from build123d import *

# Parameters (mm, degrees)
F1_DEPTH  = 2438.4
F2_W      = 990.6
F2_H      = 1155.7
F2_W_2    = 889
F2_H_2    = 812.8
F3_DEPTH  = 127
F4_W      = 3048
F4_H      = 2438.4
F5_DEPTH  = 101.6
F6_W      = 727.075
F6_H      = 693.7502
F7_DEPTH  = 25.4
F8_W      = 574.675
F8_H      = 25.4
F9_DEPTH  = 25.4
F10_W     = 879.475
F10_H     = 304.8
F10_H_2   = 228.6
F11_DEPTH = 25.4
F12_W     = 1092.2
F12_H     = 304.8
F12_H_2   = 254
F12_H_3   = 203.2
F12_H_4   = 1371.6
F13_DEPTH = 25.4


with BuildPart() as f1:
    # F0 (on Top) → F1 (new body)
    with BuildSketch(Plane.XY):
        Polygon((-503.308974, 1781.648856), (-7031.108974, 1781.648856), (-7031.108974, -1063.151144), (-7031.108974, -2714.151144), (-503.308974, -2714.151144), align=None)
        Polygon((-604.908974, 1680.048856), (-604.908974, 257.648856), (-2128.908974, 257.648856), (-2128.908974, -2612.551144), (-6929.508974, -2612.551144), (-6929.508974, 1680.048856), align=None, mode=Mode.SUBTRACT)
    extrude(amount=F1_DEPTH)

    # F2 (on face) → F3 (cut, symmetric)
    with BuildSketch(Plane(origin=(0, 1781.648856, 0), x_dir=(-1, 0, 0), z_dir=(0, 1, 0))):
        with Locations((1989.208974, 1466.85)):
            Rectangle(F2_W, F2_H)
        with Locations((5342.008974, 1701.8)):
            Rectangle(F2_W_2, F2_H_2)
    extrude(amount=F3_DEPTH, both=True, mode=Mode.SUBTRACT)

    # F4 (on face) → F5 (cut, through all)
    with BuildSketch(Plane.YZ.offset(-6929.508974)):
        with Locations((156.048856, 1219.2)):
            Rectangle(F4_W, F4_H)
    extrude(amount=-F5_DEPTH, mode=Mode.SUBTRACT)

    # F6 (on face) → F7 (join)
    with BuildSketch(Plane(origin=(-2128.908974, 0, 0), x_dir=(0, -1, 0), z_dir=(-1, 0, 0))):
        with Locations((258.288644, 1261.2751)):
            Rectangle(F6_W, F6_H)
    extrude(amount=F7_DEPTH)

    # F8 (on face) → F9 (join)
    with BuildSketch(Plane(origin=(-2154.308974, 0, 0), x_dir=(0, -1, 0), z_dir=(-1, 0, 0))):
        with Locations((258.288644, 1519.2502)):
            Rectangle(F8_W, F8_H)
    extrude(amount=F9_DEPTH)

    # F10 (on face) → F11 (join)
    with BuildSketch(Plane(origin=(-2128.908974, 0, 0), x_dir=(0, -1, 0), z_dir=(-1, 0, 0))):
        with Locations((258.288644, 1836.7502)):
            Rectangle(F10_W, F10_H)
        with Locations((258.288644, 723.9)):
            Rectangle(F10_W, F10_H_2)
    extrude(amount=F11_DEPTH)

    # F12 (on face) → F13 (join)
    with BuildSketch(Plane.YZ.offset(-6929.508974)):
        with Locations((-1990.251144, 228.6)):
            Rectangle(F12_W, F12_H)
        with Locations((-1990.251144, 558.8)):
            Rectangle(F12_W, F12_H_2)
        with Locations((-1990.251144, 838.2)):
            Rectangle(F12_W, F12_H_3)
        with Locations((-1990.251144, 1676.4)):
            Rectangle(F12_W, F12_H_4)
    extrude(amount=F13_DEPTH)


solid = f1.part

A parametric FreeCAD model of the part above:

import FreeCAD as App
import Part
import Sketcher
Q = App.Units.Quantity


def add_polygon(sketch, points):
    """Adds a closed chain of lines whose ends are joined by coincident constraints."""
    first, n = sketch.GeometryCount, len(points)
    for a, b in zip(points, points[1:] + points[:1]):
        sketch.addGeometry(Part.LineSegment(App.Vector(*a, 0), App.Vector(*b, 0)), False)
    for i in range(n):
        sketch.addConstraint(Sketcher.Constraint("Coincident", first + i, 2, first + (i + 1) % n, 1))

doc = App.newDocument("Part")
params = doc.addObject("Spreadsheet::Sheet", "Params")
for row, (alias, value) in enumerate([
    ("sketch1_width", "257 in"),
    ("sketch1_width2", "249 in"),
    ("sketch1_width3", "60 in"),
    ("sketch1_height", "177 in"),
    ("sketch1_height2", "56 in"),
    ("pad1_length", "96 in"),
    ("sketch2_width", "39 in"),
    ("sketch2_width2", "35 in"),
    ("sketch2_height", "32 in"),
    ("sketch2_height2", "45.5 in"),
    ("pocket1_length", "10 in"),
    ("sketch3_width", "120 in"),
    ("sketch3_height", "96 in"),
    ("sketch4_width", "28.625 in"),
    ("sketch4_height", "27.313 in"),
    ("pad2_length", "1 in"),
    ("sketch5_height", "1 in"),
    ("sketch5_width", "22.625 in"),
    ("pad3_length", "1 in"),
    ("sketch6_height", "12 in"),
    ("sketch6_height2", "9 in"),
    ("sketch6_width", "34.625 in"),
    ("pad4_length", "1 in"),
    ("sketch7_width", "43 in"),
    ("sketch7_height", "12 in"),
    ("sketch7_height2", "10 in"),
    ("sketch7_height3", "8 in"),
    ("sketch7_height4", "54 in"),
    ("pad5_length", "1 in"),
], start=1):
    params.set(f"A{row}", alias)
    params.set(f"B{row}", "=" + value)
    params.setAlias(f"B{row}", alias)

body = doc.addObject("PartDesign::Body", "Body")

# Sketch on XY plane
sketch1 = body.newObject("Sketcher::SketchObject", "Sketch")
sketch1.AttachmentSupport = (doc.getObject("XY_Plane"), [""])
sketch1.MapMode = "FlatFace"
add_polygon(sketch1, [(-503, 1782), (-7031, 1782), (-7031, -2714), (-503, -2714)])  # lines 0-3
add_polygon(sketch1, [(-6930, 1680), (-605, 1680), (-605, 258), (-2129, 258), (-2129, -2613), (-6930, -2613)])  # lines 4-9
sketch1.addConstraint(Sketcher.Constraint("Horizontal", 0))
sketch1.addConstraint(Sketcher.Constraint("Vertical", 1))
sketch1.addConstraint(Sketcher.Constraint("Horizontal", 2))
sketch1.addConstraint(Sketcher.Constraint("Vertical", 3))
sketch1.addConstraint(Sketcher.Constraint("Horizontal", 4))
sketch1.addConstraint(Sketcher.Constraint("Vertical", 5))
sketch1.addConstraint(Sketcher.Constraint("Horizontal", 6))
sketch1.addConstraint(Sketcher.Constraint("Vertical", 7))
sketch1.addConstraint(Sketcher.Constraint("Horizontal", 8))
sketch1.addConstraint(Sketcher.Constraint("Vertical", 9))
sketch1.addConstraint(Sketcher.Constraint("DistanceX", 0, 2, 0, 1, Q("257 in")))
sketch1.addConstraint(Sketcher.Constraint("DistanceX", 4, 1, 4, 2, Q("249 in")))
sketch1.addConstraint(Sketcher.Constraint("DistanceX", 6, 2, 6, 1, Q("60 in")))
sketch1.addConstraint(Sketcher.Constraint("DistanceY", 1, 2, 1, 1, Q("177 in")))
sketch1.addConstraint(Sketcher.Constraint("DistanceY", 5, 2, 5, 1, Q("56 in")))
sketch1.addConstraint(Sketcher.Constraint("DistanceY", 7, 2, 7, 1, Q("113 in")))
sketch1.addConstraint(Sketcher.Constraint("DistanceX", 4, 2, 3, 2, Q("4 in")))
sketch1.addConstraint(Sketcher.Constraint("DistanceY", 4, 2, 3, 2, Q("4 in")))
sketch1.addConstraint(Sketcher.Constraint("DistanceX", 0, 2, -1, 1, Q("7031.108974 mm")))
sketch1.addConstraint(Sketcher.Constraint("DistanceY", -1, 1, 0, 2, Q("1781.648856 mm")))
sketch1.setExpression("Constraints[20]", "Params.sketch1_width")
sketch1.setExpression("Constraints[21]", "Params.sketch1_width2")
sketch1.setExpression("Constraints[22]", "Params.sketch1_width3")
sketch1.setExpression("Constraints[23]", "Params.sketch1_height")
sketch1.setExpression("Constraints[24]", "Params.sketch1_height2")
pad1 = body.newObject("PartDesign::Pad", "Pad")
pad1.Profile = sketch1
pad1.setExpression("Length", "Params.pad1_length")

# Sketch on XZ plane
sketch2 = body.newObject("Sketcher::SketchObject", "Sketch001")
sketch2.AttachmentSupport = (doc.getObject("XZ_Plane"), [""])
sketch2.MapMode = "FlatFace"
sketch2.AttachmentOffset = App.Placement(App.Vector(0, 0, -1781.648856), App.Rotation())
add_polygon(sketch2, [(-1494, 2045), (-1494, 889), (-2485, 889), (-2485, 2045)])  # lines 0-3
add_polygon(sketch2, [(-4898, 2108), (-4898, 1295), (-5787, 1295), (-5787, 2108)])  # lines 4-7
sketch2.addConstraint(Sketcher.Constraint("Vertical", 0))
sketch2.addConstraint(Sketcher.Constraint("Horizontal", 1))
sketch2.addConstraint(Sketcher.Constraint("Vertical", 2))
sketch2.addConstraint(Sketcher.Constraint("Horizontal", 3))
sketch2.addConstraint(Sketcher.Constraint("Vertical", 4))
sketch2.addConstraint(Sketcher.Constraint("Horizontal", 5))
sketch2.addConstraint(Sketcher.Constraint("Vertical", 6))
sketch2.addConstraint(Sketcher.Constraint("Horizontal", 7))
sketch2.addConstraint(Sketcher.Constraint("DistanceX", 1, 2, 1, 1, Q("39 in")))
sketch2.addConstraint(Sketcher.Constraint("DistanceX", 5, 2, 5, 1, Q("35 in")))
sketch2.addConstraint(Sketcher.Constraint("DistanceY", 4, 2, 4, 1, Q("32 in")))
sketch2.addConstraint(Sketcher.Constraint("DistanceY", 0, 2, 0, 1, Q("45.5 in")))
sketch2.addConstraint(Sketcher.Constraint("DistanceY", -1, 1, 0, 2, Q("35 in")))
sketch2.addConstraint(Sketcher.Constraint("DistanceY", -1, 1, 4, 2, Q("51 in")))
sketch2.addConstraint(Sketcher.Constraint("DistanceX", 4, 2, 1, 2, Q("95 in")))
sketch2.addConstraint(Sketcher.Constraint("DistanceX", 0, 2, -1, 1, Q("1493.908974 mm")))
sketch2.setExpression("Constraints[16]", "Params.sketch2_width")
sketch2.setExpression("Constraints[17]", "Params.sketch2_width2")
sketch2.setExpression("Constraints[18]", "Params.sketch2_height")
sketch2.setExpression("Constraints[19]", "Params.sketch2_height2")
pocket1 = body.newObject("PartDesign::Pocket", "Pocket")
pocket1.Profile = sketch2
pocket1.setExpression("Length", "Params.pocket1_length")
pocket1.Midplane = True

# Sketch on YZ plane
sketch3 = body.newObject("Sketcher::SketchObject", "Sketch002")
sketch3.AttachmentSupport = (doc.getObject("YZ_Plane"), [""])
sketch3.MapMode = "FlatFace"
sketch3.AttachmentOffset = App.Placement(App.Vector(0, 0, -6929.508974), App.Rotation())
add_polygon(sketch3, [(-1368, 2438), (-1368, 0), (1680, 0), (1680, 2438)])  # lines 0-3
sketch3.addConstraint(Sketcher.Constraint("Vertical", 0))
sketch3.addConstraint(Sketcher.Constraint("Horizontal", 1))
sketch3.addConstraint(Sketcher.Constraint("Vertical", 2))
sketch3.addConstraint(Sketcher.Constraint("Horizontal", 3))
sketch3.addConstraint(Sketcher.Constraint("PointOnObject", 0, 2, -1))
sketch3.addConstraint(Sketcher.Constraint("DistanceX", 1, 1, 1, 2, Q("120 in")))
sketch3.addConstraint(Sketcher.Constraint("DistanceY", 0, 2, 0, 1, Q("96 in")))
sketch3.addConstraint(Sketcher.Constraint("DistanceX", 0, 2, -1, 1, Q("1367.951144 mm")))
sketch3.setExpression("Constraints[9]", "Params.sketch3_width")
sketch3.setExpression("Constraints[10]", "Params.sketch3_height")
pocket2 = body.newObject("PartDesign::Pocket", "Pocket001")
pocket2.Profile = sketch3
pocket2.Type = "ThroughAll"

# Sketch on YZ plane
sketch4 = body.newObject("Sketcher::SketchObject", "Sketch003")
sketch4.AttachmentSupport = (doc.getObject("YZ_Plane"), [""])
sketch4.MapMode = "FlatFace"
sketch4.AttachmentOffset = App.Placement(App.Vector(0, 0, -2128.908974), App.Rotation())
add_polygon(sketch4, [(105, 1608), (105, 914), (-622, 914), (-622, 1608)])  # lines 0-3
sketch4.addConstraint(Sketcher.Constraint("Vertical", 0))
sketch4.addConstraint(Sketcher.Constraint("Horizontal", 1))
sketch4.addConstraint(Sketcher.Constraint("Vertical", 2))
sketch4.addConstraint(Sketcher.Constraint("Horizontal", 3))
sketch4.addConstraint(Sketcher.Constraint("DistanceY", -1, 1, 0, 2, Q("36 in")))
sketch4.addConstraint(Sketcher.Constraint("DistanceX", 1, 2, 1, 1, Q("28.625 in")))
sketch4.addConstraint(Sketcher.Constraint("DistanceY", 0, 2, 0, 1, Q("27.313 in")))
sketch4.addConstraint(Sketcher.Constraint("DistanceX", -1, 1, 0, 2, Q("105.248856 mm")))
sketch4.setExpression("Constraints[9]", "Params.sketch4_width")
sketch4.setExpression("Constraints[10]", "Params.sketch4_height")
pad2 = body.newObject("PartDesign::Pad", "Pad001")
pad2.Profile = sketch4
pad2.setExpression("Length", "Params.pad2_length")
pad2.Reversed = True

# Sketch on YZ plane
sketch5 = body.newObject("Sketcher::SketchObject", "Sketch004")
sketch5.AttachmentSupport = (doc.getObject("YZ_Plane"), [""])
sketch5.MapMode = "FlatFace"
sketch5.AttachmentOffset = App.Placement(App.Vector(0, 0, -2154.308974), App.Rotation())
add_polygon(sketch5, [(29, 1532), (29, 1507), (-546, 1507), (-546, 1532)])  # lines 0-3
sketch5.addConstraint(Sketcher.Constraint("Vertical", 0))
sketch5.addConstraint(Sketcher.Constraint("Horizontal", 1))
sketch5.addConstraint(Sketcher.Constraint("Vertical", 2))
sketch5.addConstraint(Sketcher.Constraint("Horizontal", 3))
sketch5.addConstraint(Sketcher.Constraint("DistanceY", 0, 2, 0, 1, Q("1 in")))
sketch5.addConstraint(Sketcher.Constraint("DistanceX", 1, 2, 1, 1, Q("22.625 in")))
sketch5.addConstraint(Sketcher.Constraint("DistanceY", -1, 1, 0, 2, Q("59.313 in")))
sketch5.addConstraint(Sketcher.Constraint("DistanceX", -1, 1, 0, 2, Q("29.048856 mm")))
sketch5.setExpression("Constraints[8]", "Params.sketch5_height")
sketch5.setExpression("Constraints[9]", "Params.sketch5_width")
pad3 = body.newObject("PartDesign::Pad", "Pad002")
pad3.Profile = sketch5
pad3.setExpression("Length", "Params.pad3_length")
pad3.Reversed = True

# Sketch on YZ plane
sketch6 = body.newObject("Sketcher::SketchObject", "Sketch005")
sketch6.AttachmentSupport = (doc.getObject("YZ_Plane"), [""])
sketch6.MapMode = "FlatFace"
sketch6.AttachmentOffset = App.Placement(App.Vector(0, 0, -2128.908974), App.Rotation())
add_polygon(sketch6, [(181, 1989), (181, 1684), (-698, 1684), (-698, 1989)])  # lines 0-3
add_polygon(sketch6, [(181, 838), (181, 610), (-698, 610), (-698, 838)])  # lines 4-7
sketch6.addConstraint(Sketcher.Constraint("Vertical", 0))
sketch6.addConstraint(Sketcher.Constraint("Horizontal", 1))
sketch6.addConstraint(Sketcher.Constraint("Vertical", 2))
sketch6.addConstraint(Sketcher.Constraint("Horizontal", 3))
sketch6.addConstraint(Sketcher.Constraint("Vertical", 4))
sketch6.addConstraint(Sketcher.Constraint("Horizontal", 5))
sketch6.addConstraint(Sketcher.Constraint("Vertical", 6))
sketch6.addConstraint(Sketcher.Constraint("Horizontal", 7))
sketch6.addConstraint(Sketcher.Constraint("Vertical", 3, 2, 4, 2))
sketch6.addConstraint(Sketcher.Constraint("Vertical", 2, 2, 5, 2))
sketch6.addConstraint(Sketcher.Constraint("DistanceY", 0, 2, 0, 1, Q("12 in")))
sketch6.addConstraint(Sketcher.Constraint("DistanceY", 4, 2, 4, 1, Q("9 in")))
sketch6.addConstraint(Sketcher.Constraint("DistanceY", -1, 1, 4, 2, Q("24 in")))
sketch6.addConstraint(Sketcher.Constraint("DistanceX", 1, 2, 1, 1, Q("34.625 in")))
sketch6.addConstraint(Sketcher.Constraint("DistanceY", -1, 1, 0, 2, Q("66.313 in")))
sketch6.addConstraint(Sketcher.Constraint("DistanceX", -1, 1, 0, 2, Q("181.448856 mm")))
sketch6.setExpression("Constraints[18]", "Params.sketch6_height")
sketch6.setExpression("Constraints[19]", "Params.sketch6_height2")
sketch6.setExpression("Constraints[21]", "Params.sketch6_width")
pad4 = body.newObject("PartDesign::Pad", "Pad003")
pad4.Profile = sketch6
pad4.setExpression("Length", "Params.pad4_length")
pad4.Reversed = True

# Sketch on YZ plane
sketch7 = body.newObject("Sketcher::SketchObject", "Sketch006")
sketch7.AttachmentSupport = (doc.getObject("YZ_Plane"), [""])
sketch7.MapMode = "FlatFace"
sketch7.AttachmentOffset = App.Placement(App.Vector(0, 0, -6929.508974), App.Rotation())
add_polygon(sketch7, [(-2536, 381), (-2536, 76), (-1444, 76), (-1444, 381)])  # lines 0-3
add_polygon(sketch7, [(-2536, 686), (-2536, 432), (-1444, 432), (-1444, 686)])  # lines 4-7
add_polygon(sketch7, [(-2536, 940), (-2536, 737), (-1444, 737), (-1444, 940)])  # lines 8-11
add_polygon(sketch7, [(-2536, 2362), (-2536, 991), (-1444, 991), (-1444, 2362)])  # lines 12-15
sketch7.addConstraint(Sketcher.Constraint("Vertical", 0))
sketch7.addConstraint(Sketcher.Constraint("Horizontal", 1))
sketch7.addConstraint(Sketcher.Constraint("Vertical", 2))
sketch7.addConstraint(Sketcher.Constraint("Horizontal", 3))
sketch7.addConstraint(Sketcher.Constraint("Vertical", 4))
sketch7.addConstraint(Sketcher.Constraint("Horizontal", 5))
sketch7.addConstraint(Sketcher.Constraint("Vertical", 6))
sketch7.addConstraint(Sketcher.Constraint("Horizontal", 7))
sketch7.addConstraint(Sketcher.Constraint("Vertical", 8))
sketch7.addConstraint(Sketcher.Constraint("Horizontal", 9))
sketch7.addConstraint(Sketcher.Constraint("Vertical", 10))
sketch7.addConstraint(Sketcher.Constraint("Horizontal", 11))
sketch7.addConstraint(Sketcher.Constraint("Vertical", 12))
sketch7.addConstraint(Sketcher.Constraint("Horizontal", 13))
sketch7.addConstraint(Sketcher.Constraint("Vertical", 14))
sketch7.addConstraint(Sketcher.Constraint("Horizontal", 15))
sketch7.addConstraint(Sketcher.Constraint("Vertical", 3, 2, 4, 2))
sketch7.addConstraint(Sketcher.Constraint("Vertical", 2, 2, 5, 2))
sketch7.addConstraint(Sketcher.Constraint("Vertical", 7, 2, 8, 2))
sketch7.addConstraint(Sketcher.Constraint("Vertical", 6, 2, 9, 2))
sketch7.addConstraint(Sketcher.Constraint("Vertical", 11, 2, 12, 2))
sketch7.addConstraint(Sketcher.Constraint("Vertical", 10, 2, 13, 2))
sketch7.addConstraint(Sketcher.Constraint("DistanceX", 1, 1, 1, 2, Q("43 in")))
sketch7.addConstraint(Sketcher.Constraint("DistanceY", 0, 2, 0, 1, Q("12 in")))
sketch7.addConstraint(Sketcher.Constraint("DistanceY", 4, 2, 4, 1, Q("10 in")))
sketch7.addConstraint(Sketcher.Constraint("DistanceY", 8, 2, 8, 1, Q("8 in")))
sketch7.addConstraint(Sketcher.Constraint("DistanceY", 12, 2, 12, 1, Q("54 in")))
sketch7.addConstraint(Sketcher.Constraint("DistanceY", -1, 1, 0, 2, Q("3 in")))
sketch7.addConstraint(Sketcher.Constraint("DistanceY", -1, 1, 4, 2, Q("17 in")))
sketch7.addConstraint(Sketcher.Constraint("DistanceY", -1, 1, 8, 2, Q("29 in")))
sketch7.addConstraint(Sketcher.Constraint("DistanceY", -1, 1, 12, 2, Q("39 in")))
sketch7.addConstraint(Sketcher.Constraint("DistanceX", 0, 2, -1, 1, Q("2536.351144 mm")))
sketch7.setExpression("Constraints[38]", "Params.sketch7_width")
sketch7.setExpression("Constraints[39]", "Params.sketch7_height")
sketch7.setExpression("Constraints[40]", "Params.sketch7_height2")
sketch7.setExpression("Constraints[41]", "Params.sketch7_height3")
sketch7.setExpression("Constraints[42]", "Params.sketch7_height4")
pad5 = body.newObject("PartDesign::Pad", "Pad004")
pad5.Profile = sketch7
pad5.setExpression("Length", "Params.pad5_length")

doc.recompute()
